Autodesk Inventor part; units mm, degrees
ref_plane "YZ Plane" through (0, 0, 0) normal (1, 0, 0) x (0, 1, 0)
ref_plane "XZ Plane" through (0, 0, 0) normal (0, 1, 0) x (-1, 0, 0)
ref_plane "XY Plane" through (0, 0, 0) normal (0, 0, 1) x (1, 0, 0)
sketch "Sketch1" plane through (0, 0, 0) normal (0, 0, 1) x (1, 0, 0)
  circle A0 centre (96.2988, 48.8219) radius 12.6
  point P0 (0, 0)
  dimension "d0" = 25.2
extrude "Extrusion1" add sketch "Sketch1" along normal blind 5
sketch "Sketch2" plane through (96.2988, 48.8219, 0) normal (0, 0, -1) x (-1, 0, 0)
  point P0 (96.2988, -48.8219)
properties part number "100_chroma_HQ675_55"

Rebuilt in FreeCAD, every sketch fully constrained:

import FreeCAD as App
import Part
import Sketcher
from FreeCAD import Vector

doc = App.newDocument("Part")
params = doc.addObject("Spreadsheet::Sheet", "Params")
for row, (alias, value) in enumerate([
    ("sketch1_diameter", "25.2 mm"),
    ("pad1_length", "5 mm"),
], start=1):
    params.set(f"A{row}", alias)
    params.set(f"B{row}", "=" + value)
    params.setAlias(f"B{row}", alias)

body = doc.addObject("PartDesign::Body", "Body")

# Sketch on XY plane
sketch1 = doc.addObject("Sketcher::SketchObject", "Sketch")
body.addObject(sketch1)
sketch1.AttachmentSupport = (doc.XY_Plane, [""])
sketch1.MapMode = "FlatFace"
sketch1.addGeometry(Part.Circle(Vector(96.2988, 48.8219, 0), Vector(0, 0, 1), 12.6), False)
sketch1.addConstraint(Sketcher.Constraint("Diameter", 0, 25.2))
sketch1.addConstraint(Sketcher.Constraint("DistanceY", -1, 1, 0, 3, 48.822))
sketch1.addConstraint(Sketcher.Constraint("DistanceX", -1, 1, 0, 3, 96.2988))
sketch1.setExpression("Constraints[0]", "Params.sketch1_diameter")
pad1 = doc.addObject("PartDesign::Pad", "Pad")
body.addObject(pad1)
pad1.Profile = sketch1
pad1.setExpression("Length", "Params.pad1_length")

doc.recompute()
